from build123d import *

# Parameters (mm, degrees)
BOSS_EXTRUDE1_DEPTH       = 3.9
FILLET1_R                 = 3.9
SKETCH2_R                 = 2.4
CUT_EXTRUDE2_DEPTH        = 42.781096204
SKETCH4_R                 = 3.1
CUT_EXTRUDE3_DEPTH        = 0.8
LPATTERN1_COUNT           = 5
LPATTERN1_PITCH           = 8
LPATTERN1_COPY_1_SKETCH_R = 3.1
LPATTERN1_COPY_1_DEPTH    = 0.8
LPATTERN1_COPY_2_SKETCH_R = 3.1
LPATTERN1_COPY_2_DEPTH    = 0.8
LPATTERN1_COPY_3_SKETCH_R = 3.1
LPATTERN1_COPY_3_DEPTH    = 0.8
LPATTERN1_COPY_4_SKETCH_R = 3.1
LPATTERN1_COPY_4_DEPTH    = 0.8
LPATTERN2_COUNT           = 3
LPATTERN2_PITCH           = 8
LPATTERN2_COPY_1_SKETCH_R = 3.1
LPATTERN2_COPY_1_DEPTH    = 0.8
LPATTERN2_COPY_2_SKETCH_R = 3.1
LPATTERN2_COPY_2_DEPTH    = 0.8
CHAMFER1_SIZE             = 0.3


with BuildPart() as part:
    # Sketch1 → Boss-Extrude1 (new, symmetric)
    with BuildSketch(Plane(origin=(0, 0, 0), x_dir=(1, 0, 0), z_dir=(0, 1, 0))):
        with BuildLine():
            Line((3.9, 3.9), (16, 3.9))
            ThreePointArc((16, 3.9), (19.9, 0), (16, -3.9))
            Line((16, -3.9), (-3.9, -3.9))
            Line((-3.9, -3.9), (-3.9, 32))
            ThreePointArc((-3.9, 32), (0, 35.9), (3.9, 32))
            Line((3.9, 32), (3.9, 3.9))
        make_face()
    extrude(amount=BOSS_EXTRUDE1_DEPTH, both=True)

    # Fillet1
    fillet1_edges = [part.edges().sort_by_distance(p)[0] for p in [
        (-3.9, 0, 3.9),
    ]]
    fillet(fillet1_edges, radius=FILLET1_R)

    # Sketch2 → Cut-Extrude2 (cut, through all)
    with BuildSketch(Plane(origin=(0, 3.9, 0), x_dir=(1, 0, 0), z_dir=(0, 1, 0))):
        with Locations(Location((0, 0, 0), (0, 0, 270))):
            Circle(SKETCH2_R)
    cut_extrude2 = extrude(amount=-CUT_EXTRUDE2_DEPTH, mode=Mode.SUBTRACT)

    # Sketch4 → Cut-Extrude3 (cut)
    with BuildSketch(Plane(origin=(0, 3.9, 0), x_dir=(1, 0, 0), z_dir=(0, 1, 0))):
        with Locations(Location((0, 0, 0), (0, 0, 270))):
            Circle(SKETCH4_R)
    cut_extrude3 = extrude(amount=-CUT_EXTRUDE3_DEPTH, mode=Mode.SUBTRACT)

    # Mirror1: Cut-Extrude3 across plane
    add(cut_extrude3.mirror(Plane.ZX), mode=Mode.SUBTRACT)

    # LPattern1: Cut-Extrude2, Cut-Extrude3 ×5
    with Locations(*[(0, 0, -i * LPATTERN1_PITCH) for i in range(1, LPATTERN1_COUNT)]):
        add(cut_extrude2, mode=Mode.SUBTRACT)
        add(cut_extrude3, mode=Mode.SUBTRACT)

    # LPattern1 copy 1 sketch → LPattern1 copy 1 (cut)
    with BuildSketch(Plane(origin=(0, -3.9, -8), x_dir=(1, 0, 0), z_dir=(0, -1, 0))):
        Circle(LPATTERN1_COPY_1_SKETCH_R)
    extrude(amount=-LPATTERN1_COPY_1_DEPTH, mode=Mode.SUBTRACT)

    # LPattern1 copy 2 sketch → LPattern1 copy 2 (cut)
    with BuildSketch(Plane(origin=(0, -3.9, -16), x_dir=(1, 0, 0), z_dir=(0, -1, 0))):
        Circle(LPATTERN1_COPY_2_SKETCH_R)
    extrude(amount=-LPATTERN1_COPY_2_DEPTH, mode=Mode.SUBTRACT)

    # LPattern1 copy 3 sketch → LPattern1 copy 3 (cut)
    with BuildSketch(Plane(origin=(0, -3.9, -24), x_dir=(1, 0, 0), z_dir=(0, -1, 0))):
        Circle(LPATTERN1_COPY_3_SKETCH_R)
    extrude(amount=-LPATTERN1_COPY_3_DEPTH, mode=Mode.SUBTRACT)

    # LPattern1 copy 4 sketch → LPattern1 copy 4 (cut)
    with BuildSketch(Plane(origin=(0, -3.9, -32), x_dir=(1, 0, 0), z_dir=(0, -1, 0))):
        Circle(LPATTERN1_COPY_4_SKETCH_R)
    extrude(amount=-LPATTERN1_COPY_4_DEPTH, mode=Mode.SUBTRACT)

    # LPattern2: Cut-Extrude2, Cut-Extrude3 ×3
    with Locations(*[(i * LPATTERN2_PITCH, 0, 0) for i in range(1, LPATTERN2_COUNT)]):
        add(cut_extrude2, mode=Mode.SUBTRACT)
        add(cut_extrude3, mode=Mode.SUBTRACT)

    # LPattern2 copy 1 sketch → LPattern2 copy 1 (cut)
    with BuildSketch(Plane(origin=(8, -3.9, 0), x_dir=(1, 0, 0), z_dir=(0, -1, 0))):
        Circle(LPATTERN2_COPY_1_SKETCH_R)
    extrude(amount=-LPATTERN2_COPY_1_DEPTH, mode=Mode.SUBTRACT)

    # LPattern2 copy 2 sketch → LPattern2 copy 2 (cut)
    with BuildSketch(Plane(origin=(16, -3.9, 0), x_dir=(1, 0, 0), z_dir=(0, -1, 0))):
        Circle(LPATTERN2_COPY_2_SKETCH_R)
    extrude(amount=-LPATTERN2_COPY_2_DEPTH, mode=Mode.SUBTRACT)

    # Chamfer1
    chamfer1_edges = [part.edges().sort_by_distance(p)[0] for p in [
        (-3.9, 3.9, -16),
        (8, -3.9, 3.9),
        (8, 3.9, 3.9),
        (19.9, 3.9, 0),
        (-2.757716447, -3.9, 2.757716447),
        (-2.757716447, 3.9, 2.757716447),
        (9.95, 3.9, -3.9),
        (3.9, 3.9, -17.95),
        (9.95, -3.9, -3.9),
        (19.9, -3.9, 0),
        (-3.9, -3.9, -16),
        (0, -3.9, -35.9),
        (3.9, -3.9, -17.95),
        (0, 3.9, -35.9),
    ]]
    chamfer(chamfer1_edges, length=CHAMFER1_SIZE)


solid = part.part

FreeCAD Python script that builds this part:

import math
import FreeCAD as App
import Part
import Sketcher
from FreeCAD import Vector


def edges_at(feature, points):
    """Names of the edges that pass closest to the given points."""
    edges = feature.Shape.Edges
    near = lambda p: min(range(len(edges)), key=lambda i: edges[i].distToShape(Part.Vertex(*p))[0])
    return sorted({f"Edge{near(p) + 1}" for p in points})

doc = App.newDocument("Part")
body = doc.addObject("PartDesign::Body", "Body")

sketch1 = body.newObject("Sketcher::SketchObject", "Sketch")
sketch1.AttachmentSupport = (doc.getObject("XZ_Plane"), [""])
sketch1.MapMode = "FlatFace"
sketch1.addGeometry([
    Part.LineSegment(Vector(16, -3.9, 0), Vector(3.9, -3.9, 0)),
    Part.LineSegment(Vector(3.9, -3.9, 0), Vector(3.9, -32, 0)),
    Part.ArcOfCircle(Part.Circle(Vector(0, -32, 0), Vector(0, 0, 1), 3.9), math.radians(180), math.radians(360)),
    Part.LineSegment(Vector(-3.9, -32, 0), Vector(-3.9, 3.9, 0)),
    Part.LineSegment(Vector(-3.9, 3.9, 0), Vector(16, 3.9, 0)),
    Part.ArcOfCircle(Part.Circle(Vector(16, 0, 0), Vector(0, 0, 1), 3.9), math.radians(-90), math.radians(90)),
], False)
sketch1.addConstraint([
    Sketcher.Constraint("Coincident", 0, 2, 1, 1),
    Sketcher.Constraint("Tangent", 1, 2, 2, 2),
    Sketcher.Constraint("Tangent", 2, 1, 3, 1),
    Sketcher.Constraint("Coincident", 3, 2, 4, 1),
    Sketcher.Constraint("Tangent", 4, 2, 5, 2),
    Sketcher.Constraint("Tangent", 5, 1, 0, 1),
    Sketcher.Constraint("Horizontal", 0),
    Sketcher.Constraint("Vertical", 1),
    Sketcher.Constraint("Vertical", 3),
    Sketcher.Constraint("Horizontal", 4),
    Sketcher.Constraint("Equal", 2, 5),
    Sketcher.Constraint("Symmetric", 0, 2, 3, 2, -1, 1),
    Sketcher.Constraint("Radius", 2, 3.9),
    Sketcher.Constraint("DistanceX", 0, 2, 0, 1, 12.1),
    Sketcher.Constraint("DistanceY", 1, 2, 1, 1, 28.1),
])
pad1 = body.newObject("PartDesign::Pad", "Pad")
pad1.Profile = sketch1
pad1.Length = 7.8
pad1.Midplane = True
doc.recompute()

fillet = body.newObject("PartDesign::Fillet", "Fillet")
fillet.Base = (pad1, edges_at(pad1, [(-3.9, 0, 3.9)]))
fillet.Radius = 3.9

sketch2 = body.newObject("Sketcher::SketchObject", "Sketch001")
sketch2.AttachmentSupport = (doc.getObject("XZ_Plane"), [""])
sketch2.MapMode = "FlatFace"
sketch2.AttachmentOffset = App.Placement(Vector(0, 0, -3.9), App.Rotation())
sketch2.addGeometry(Part.Circle(Vector(0, 0, 0), Vector(0, 0, 1), 2.4), False)
sketch2.addConstraint([
    Sketcher.Constraint("Coincident", 0, 3, -1, 1),
    Sketcher.Constraint("Diameter", 0, 4.8),
])
pocket1 = body.newObject("PartDesign::Pocket", "Pocket")
pocket1.Profile = sketch2
pocket1.Type = "ThroughAll"
pocket1.Reversed = True

sketch3 = body.newObject("Sketcher::SketchObject", "Sketch002")
sketch3.AttachmentSupport = (doc.getObject("XZ_Plane"), [""])
sketch3.MapMode = "FlatFace"
sketch3.AttachmentOffset = App.Placement(Vector(0, 0, -3.9), App.Rotation())
sketch3.addGeometry(Part.Circle(Vector(0, 0, 0), Vector(0, 0, 1), 3.1), False)
sketch3.addConstraint([
    Sketcher.Constraint("Coincident", 0, 3, -1, 1),
    Sketcher.Constraint("Diameter", 0, 6.2),
])
pocket2 = body.newObject("PartDesign::Pocket", "Pocket001")
pocket2.Profile = sketch3
pocket2.Length = 0.8
pocket2.Reversed = True
doc.recompute()

mirrored = body.newObject("PartDesign::Mirrored", "Mirrored")
mirrored.Originals = [pocket2]
mirrored.MirrorPlane = (doc.getObject("XZ_Plane"), [""])
body.Tip = mirrored
doc.recompute()

linearpattern = body.newObject("PartDesign::LinearPattern", "LinearPattern")
linearpattern.Originals = [pocket1, pocket2]
linearpattern.Direction = (doc.getObject("Z_Axis"), [""])
linearpattern.Mode = "offset"
linearpattern.Offset = 8
linearpattern.Occurrences = 5
linearpattern.Reversed = True
body.Tip = linearpattern

sketch4 = body.newObject("Sketcher::SketchObject", "Sketch003")
sketch4.AttachmentSupport = (doc.getObject("XZ_Plane"), [""])
sketch4.MapMode = "FlatFace"
sketch4.AttachmentOffset = App.Placement(Vector(0, 0, 3.9), App.Rotation())
sketch4.addGeometry(Part.Circle(Vector(0, -8, 0), Vector(0, 0, 1), 3.1), False)
sketch4.addConstraint([
    Sketcher.Constraint("PointOnObject", 0, 3, -2),
    Sketcher.Constraint("Diameter", 0, 6.2),
    Sketcher.Constraint("DistanceY", 0, 3, -1, 1, 8.0),
])
pocket3 = body.newObject("PartDesign::Pocket", "Pocket002")
pocket3.Profile = sketch4
pocket3.Length = 0.8

sketch5 = body.newObject("Sketcher::SketchObject", "Sketch004")
sketch5.AttachmentSupport = (doc.getObject("XZ_Plane"), [""])
sketch5.MapMode = "FlatFace"
sketch5.AttachmentOffset = App.Placement(Vector(0, 0, 3.9), App.Rotation())
sketch5.addGeometry(Part.Circle(Vector(0, -16, 0), Vector(0, 0, 1), 3.1), False)
sketch5.addConstraint([
    Sketcher.Constraint("PointOnObject", 0, 3, -2),
    Sketcher.Constraint("Diameter", 0, 6.2),
    Sketcher.Constraint("DistanceY", 0, 3, -1, 1, 16.0),
])
pocket4 = body.newObject("PartDesign::Pocket", "Pocket003")
pocket4.Profile = sketch5
pocket4.Length = 0.8

sketch6 = body.newObject("Sketcher::SketchObject", "Sketch005")
sketch6.AttachmentSupport = (doc.getObject("XZ_Plane"), [""])
sketch6.MapMode = "FlatFace"
sketch6.AttachmentOffset = App.Placement(Vector(0, 0, 3.9), App.Rotation())
sketch6.addGeometry(Part.Circle(Vector(0, -24, 0), Vector(0, 0, 1), 3.1), False)
sketch6.addConstraint([
    Sketcher.Constraint("PointOnObject", 0, 3, -2),
    Sketcher.Constraint("Diameter", 0, 6.2),
    Sketcher.Constraint("DistanceY", 0, 3, -1, 1, 24.0),
])
pocket5 = body.newObject("PartDesign::Pocket", "Pocket004")
pocket5.Profile = sketch6
pocket5.Length = 0.8

sketch7 = body.newObject("Sketcher::SketchObject", "Sketch006")
sketch7.AttachmentSupport = (doc.getObject("XZ_Plane"), [""])
sketch7.MapMode = "FlatFace"
sketch7.AttachmentOffset = App.Placement(Vector(0, 0, 3.9), App.Rotation())
sketch7.addGeometry(Part.Circle(Vector(0, -32, 0), Vector(0, 0, 1), 3.1), False)
sketch7.addConstraint([
    Sketcher.Constraint("PointOnObject", 0, 3, -2),
    Sketcher.Constraint("Diameter", 0, 6.2),
    Sketcher.Constraint("DistanceY", 0, 3, -1, 1, 32.0),
])
pocket6 = body.newObject("PartDesign::Pocket", "Pocket005")
pocket6.Profile = sketch7
pocket6.Length = 0.8
doc.recompute()

linearpattern2 = body.newObject("PartDesign::LinearPattern", "LinearPattern001")
linearpattern2.Originals = [pocket1, pocket2]
linearpattern2.Direction = (doc.getObject("X_Axis"), [""])
linearpattern2.Mode = "offset"
linearpattern2.Offset = 8
linearpattern2.Occurrences = 3
body.Tip = linearpattern2

sketch8 = body.newObject("Sketcher::SketchObject", "Sketch007")
sketch8.AttachmentSupport = (doc.getObject("XZ_Plane"), [""])
sketch8.MapMode = "FlatFace"
sketch8.AttachmentOffset = App.Placement(Vector(0, 0, 3.9), App.Rotation())
sketch8.addGeometry(Part.Circle(Vector(8, 0, 0), Vector(0, 0, 1), 3.1), False)
sketch8.addConstraint([
    Sketcher.Constraint("PointOnObject", 0, 3, -1),
    Sketcher.Constraint("Diameter", 0, 6.2),
    Sketcher.Constraint("DistanceX", -1, 1, 0, 3, 8.0),
])
pocket7 = body.newObject("PartDesign::Pocket", "Pocket006")
pocket7.Profile = sketch8
pocket7.Length = 0.8

sketch9 = body.newObject("Sketcher::SketchObject", "Sketch008")
sketch9.AttachmentSupport = (doc.getObject("XZ_Plane"), [""])
sketch9.MapMode = "FlatFace"
sketch9.AttachmentOffset = App.Placement(Vector(0, 0, 3.9), App.Rotation())
sketch9.addGeometry(Part.Circle(Vector(16, 0, 0), Vector(0, 0, 1), 3.1), False)
sketch9.addConstraint([
    Sketcher.Constraint("PointOnObject", 0, 3, -1),
    Sketcher.Constraint("Diameter", 0, 6.2),
    Sketcher.Constraint("DistanceX", -1, 1, 0, 3, 16.0),
])
pocket8 = body.newObject("PartDesign::Pocket", "Pocket007")
pocket8.Profile = sketch9
pocket8.Length = 0.8
doc.recompute()

chamfer = body.newObject("PartDesign::Chamfer", "Chamfer")
chamfer.Base = (pocket8, edges_at(pocket8, [
    (-3.9, 3.9, -16),
    (8, -3.9, 3.9),
    (8, 3.9, 3.9),
    (19.9, 3.9, 0),
    (-2.758, -3.9, 2.758),
    (-2.758, 3.9, 2.758),
    (9.95, 3.9, -3.9),
    (3.9, 3.9, -17.95),
    (9.95, -3.9, -3.9),
    (19.9, -3.9, 0),
    (-3.9, -3.9, -16),
    (0, -3.9, -35.9),
    (3.9, -3.9, -17.95),
    (0, 3.9, -35.9),
]))
chamfer.Size = 0.3

doc.recompute()
